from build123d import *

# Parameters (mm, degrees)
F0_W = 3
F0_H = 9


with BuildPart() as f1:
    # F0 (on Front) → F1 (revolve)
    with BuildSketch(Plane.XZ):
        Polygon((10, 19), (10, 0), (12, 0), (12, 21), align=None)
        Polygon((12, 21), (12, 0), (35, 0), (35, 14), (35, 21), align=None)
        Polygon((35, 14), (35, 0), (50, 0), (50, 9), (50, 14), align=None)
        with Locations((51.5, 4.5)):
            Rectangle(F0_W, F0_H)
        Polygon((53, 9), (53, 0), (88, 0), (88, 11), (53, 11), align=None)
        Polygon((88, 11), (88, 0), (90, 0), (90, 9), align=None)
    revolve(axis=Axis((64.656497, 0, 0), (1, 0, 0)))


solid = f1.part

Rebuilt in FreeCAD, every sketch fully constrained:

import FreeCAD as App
import Part
import Sketcher

V = App.Vector


def add_polygon(sketch, points):
    """Adds a closed chain of lines whose ends are joined by coincident constraints."""
    first, n = sketch.GeometryCount, len(points)
    for a, b in zip(points, points[1:] + points[:1]):
        sketch.addGeometry(Part.LineSegment(App.Vector(*a, 0), App.Vector(*b, 0)), False)
    for i in range(n):
        sketch.addConstraint(Sketcher.Constraint("Coincident", first + i, 2, first + (i + 1) % n, 1))

doc = App.newDocument("Part")
body = doc.addObject("PartDesign::Body", "Body")

# Sketch on XZ plane
sketch1 = body.newObject("Sketcher::SketchObject", "Sketch")
sketch1.AttachmentSupport = (doc.getObject("XZ_Plane"), [""])
sketch1.MapMode = "FlatFace"
add_polygon(sketch1, [(10, 19), (10, 0), (90, 0), (90, 9), (88, 11), (53, 11), (53, 9), (50, 9), (50, 14), (35, 14), (35, 21), (12, 21)])  # lines 0-11
sketch1.addConstraint(Sketcher.Constraint("Vertical", 0))
sketch1.addConstraint(Sketcher.Constraint("Horizontal", 1))
sketch1.addConstraint(Sketcher.Constraint("Vertical", 2))
sketch1.addConstraint(Sketcher.Constraint("Horizontal", 4))
sketch1.addConstraint(Sketcher.Constraint("Vertical", 5))
sketch1.addConstraint(Sketcher.Constraint("Horizontal", 6))
sketch1.addConstraint(Sketcher.Constraint("Vertical", 7))
sketch1.addConstraint(Sketcher.Constraint("Horizontal", 8))
sketch1.addConstraint(Sketcher.Constraint("Vertical", 9))
sketch1.addConstraint(Sketcher.Constraint("Horizontal", 10))
sketch1.addConstraint(Sketcher.Constraint("PointOnObject", 0, 2, -1))
sketch1.addConstraint(Sketcher.Constraint("Perpendicular", 3, 11))
sketch1.addConstraint(Sketcher.Constraint("Horizontal", 2, 2, 5, 2))
sketch1.addConstraint(Sketcher.Constraint("Equal", 3, 11))
sketch1.addConstraint(Sketcher.Constraint("DistanceX", 1, 1, 1, 2, 80.0))
sketch1.addConstraint(Sketcher.Constraint("DistanceX", 4, 2, 4, 1, 35.0))
sketch1.addConstraint(Sketcher.Constraint("DistanceX", 6, 2, 6, 1, 3.0))
sketch1.addConstraint(Sketcher.Constraint("DistanceX", 8, 2, 8, 1, 15.0))
sketch1.addConstraint(Sketcher.Constraint("DistanceX", 10, 2, 10, 1, 23.0))
sketch1.addConstraint(Sketcher.Constraint("DistanceY", 0, 2, 0, 1, 19.0))
sketch1.addConstraint(Sketcher.Constraint("DistanceY", 2, 1, 2, 2, 9.0))
sketch1.addConstraint(Sketcher.Constraint("DistanceY", 5, 2, 5, 1, 2.0))
sketch1.addConstraint(Sketcher.Constraint("DistanceY", 7, 1, 7, 2, 5.0))
sketch1.addConstraint(Sketcher.Constraint("DistanceX", -1, 1, 0, 2, 10.0))
revolution = body.newObject("PartDesign::Revolution", "Revolution")
revolution.Profile = sketch1
revolution.ReferenceAxis = (sketch1, ["H_Axis"])
revolution.Angle = 360

doc.recompute()
